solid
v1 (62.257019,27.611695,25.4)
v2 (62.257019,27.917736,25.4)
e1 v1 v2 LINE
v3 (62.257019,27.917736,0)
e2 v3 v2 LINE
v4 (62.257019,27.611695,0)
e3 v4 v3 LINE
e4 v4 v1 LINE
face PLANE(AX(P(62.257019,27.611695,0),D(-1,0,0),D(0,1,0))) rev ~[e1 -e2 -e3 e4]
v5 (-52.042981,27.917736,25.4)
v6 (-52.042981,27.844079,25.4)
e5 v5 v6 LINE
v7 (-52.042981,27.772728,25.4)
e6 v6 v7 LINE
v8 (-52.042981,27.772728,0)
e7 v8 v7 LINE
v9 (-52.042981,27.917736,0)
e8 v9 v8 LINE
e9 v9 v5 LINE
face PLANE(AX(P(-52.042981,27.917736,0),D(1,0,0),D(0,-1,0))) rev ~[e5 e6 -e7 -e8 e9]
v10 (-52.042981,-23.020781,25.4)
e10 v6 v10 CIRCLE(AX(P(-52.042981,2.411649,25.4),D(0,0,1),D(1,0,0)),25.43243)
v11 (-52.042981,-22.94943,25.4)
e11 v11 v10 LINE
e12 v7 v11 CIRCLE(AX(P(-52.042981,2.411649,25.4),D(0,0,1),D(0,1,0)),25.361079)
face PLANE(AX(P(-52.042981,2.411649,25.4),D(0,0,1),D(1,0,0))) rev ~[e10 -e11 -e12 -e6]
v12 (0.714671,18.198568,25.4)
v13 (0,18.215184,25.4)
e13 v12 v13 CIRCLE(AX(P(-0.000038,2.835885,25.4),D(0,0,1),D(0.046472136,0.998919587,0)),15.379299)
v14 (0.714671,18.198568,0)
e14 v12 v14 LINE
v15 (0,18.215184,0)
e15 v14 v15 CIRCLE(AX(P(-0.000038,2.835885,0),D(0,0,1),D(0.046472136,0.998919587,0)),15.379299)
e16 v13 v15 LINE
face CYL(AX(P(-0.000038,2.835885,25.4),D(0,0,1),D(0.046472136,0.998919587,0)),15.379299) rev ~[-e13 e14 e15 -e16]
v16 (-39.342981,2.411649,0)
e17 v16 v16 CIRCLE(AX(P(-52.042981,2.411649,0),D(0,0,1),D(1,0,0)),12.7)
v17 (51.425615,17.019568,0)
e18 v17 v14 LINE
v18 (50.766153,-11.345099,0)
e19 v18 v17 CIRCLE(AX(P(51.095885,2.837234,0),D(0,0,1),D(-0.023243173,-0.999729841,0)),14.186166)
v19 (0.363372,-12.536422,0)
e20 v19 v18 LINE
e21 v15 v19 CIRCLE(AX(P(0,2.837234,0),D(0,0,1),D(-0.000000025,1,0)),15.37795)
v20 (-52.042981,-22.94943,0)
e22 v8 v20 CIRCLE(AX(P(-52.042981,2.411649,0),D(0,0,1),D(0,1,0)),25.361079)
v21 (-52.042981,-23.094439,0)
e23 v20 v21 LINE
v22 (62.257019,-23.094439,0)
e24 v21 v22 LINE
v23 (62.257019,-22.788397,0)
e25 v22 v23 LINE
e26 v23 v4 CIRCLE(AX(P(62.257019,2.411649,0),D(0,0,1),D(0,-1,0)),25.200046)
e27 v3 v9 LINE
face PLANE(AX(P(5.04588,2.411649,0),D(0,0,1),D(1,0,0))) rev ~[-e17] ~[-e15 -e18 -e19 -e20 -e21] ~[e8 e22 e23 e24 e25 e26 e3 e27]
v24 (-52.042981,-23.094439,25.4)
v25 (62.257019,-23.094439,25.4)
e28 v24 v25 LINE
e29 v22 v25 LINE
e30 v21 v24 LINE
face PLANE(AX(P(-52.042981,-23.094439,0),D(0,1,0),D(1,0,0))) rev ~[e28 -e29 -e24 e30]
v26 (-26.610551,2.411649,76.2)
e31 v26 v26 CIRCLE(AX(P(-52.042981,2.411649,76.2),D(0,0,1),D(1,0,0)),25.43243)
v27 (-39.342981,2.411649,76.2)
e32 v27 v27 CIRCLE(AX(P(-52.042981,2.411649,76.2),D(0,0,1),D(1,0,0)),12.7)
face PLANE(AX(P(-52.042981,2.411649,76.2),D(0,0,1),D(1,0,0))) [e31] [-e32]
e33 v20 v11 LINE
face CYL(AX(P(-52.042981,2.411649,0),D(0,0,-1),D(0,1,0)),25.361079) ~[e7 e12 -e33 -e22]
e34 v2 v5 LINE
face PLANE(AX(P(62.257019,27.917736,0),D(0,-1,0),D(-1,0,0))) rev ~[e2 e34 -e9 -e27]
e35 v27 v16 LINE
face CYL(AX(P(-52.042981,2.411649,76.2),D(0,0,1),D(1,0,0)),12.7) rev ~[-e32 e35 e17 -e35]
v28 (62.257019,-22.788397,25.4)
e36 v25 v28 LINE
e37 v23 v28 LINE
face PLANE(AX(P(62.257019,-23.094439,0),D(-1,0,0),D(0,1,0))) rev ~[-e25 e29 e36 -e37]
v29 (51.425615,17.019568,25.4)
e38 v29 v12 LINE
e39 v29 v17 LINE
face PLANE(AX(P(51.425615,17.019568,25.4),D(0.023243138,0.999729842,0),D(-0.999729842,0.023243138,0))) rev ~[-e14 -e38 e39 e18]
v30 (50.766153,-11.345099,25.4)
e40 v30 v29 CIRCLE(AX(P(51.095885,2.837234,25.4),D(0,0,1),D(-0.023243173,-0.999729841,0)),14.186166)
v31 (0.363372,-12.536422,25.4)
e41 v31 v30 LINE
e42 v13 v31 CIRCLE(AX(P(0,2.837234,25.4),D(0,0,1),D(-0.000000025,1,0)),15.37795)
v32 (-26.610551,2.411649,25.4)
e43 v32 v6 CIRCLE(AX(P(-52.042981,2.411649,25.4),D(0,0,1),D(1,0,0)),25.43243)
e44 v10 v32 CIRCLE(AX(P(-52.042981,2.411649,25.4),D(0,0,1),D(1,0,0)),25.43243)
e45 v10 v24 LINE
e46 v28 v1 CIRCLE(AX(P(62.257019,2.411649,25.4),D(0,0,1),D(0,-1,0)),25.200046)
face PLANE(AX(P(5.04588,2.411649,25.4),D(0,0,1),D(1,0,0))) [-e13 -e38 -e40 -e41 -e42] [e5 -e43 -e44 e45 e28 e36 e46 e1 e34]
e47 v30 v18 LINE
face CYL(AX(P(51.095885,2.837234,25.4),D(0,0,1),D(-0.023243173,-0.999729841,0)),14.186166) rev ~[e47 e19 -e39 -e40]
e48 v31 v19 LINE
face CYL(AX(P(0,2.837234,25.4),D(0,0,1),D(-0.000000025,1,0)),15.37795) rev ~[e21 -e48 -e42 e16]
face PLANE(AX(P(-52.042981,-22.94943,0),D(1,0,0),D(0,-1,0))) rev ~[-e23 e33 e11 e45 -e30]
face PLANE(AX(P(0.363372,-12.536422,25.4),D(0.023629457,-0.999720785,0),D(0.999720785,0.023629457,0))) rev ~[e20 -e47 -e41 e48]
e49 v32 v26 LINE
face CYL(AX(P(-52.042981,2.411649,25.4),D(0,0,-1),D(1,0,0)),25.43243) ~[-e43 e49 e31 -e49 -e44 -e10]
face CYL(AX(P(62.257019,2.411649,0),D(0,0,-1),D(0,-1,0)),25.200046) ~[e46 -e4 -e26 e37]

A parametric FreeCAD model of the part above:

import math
import FreeCAD as App
import Part
import Sketcher
Q = App.Units.Quantity

doc = App.newDocument("Part")
body = doc.addObject("PartDesign::Body", "Body")

# Sketch on XY plane
sketch1 = body.newObject("Sketcher::SketchObject", "Sketch")
sketch1.AttachmentSupport = (doc.getObject("XY_Plane"), [""])
sketch1.MapMode = "FlatFace"
sketch1.addGeometry([
    Part.LineSegment(App.Vector(62.257019, 27.917736, 0), App.Vector(-52.042981, 27.917736, 0)),  # 0
    Part.LineSegment(App.Vector(-52.042981, 27.917736, 0), App.Vector(-52.042981, 27.772728, 0)),  # 1
    Part.ArcOfCircle(Part.Circle(App.Vector(-52.042981, 2.411649, 0), App.Vector(0, 0, 1), 25.361079), math.radians(90), math.radians(270)),  # 2
    Part.LineSegment(App.Vector(-52.042981, -22.94943, 0), App.Vector(-52.042981, -23.094439, 0)),  # 3
    Part.LineSegment(App.Vector(-52.042981, -23.094439, 0), App.Vector(62.257019, -23.094439, 0)),  # 4
    Part.LineSegment(App.Vector(62.257019, -23.094439, 0), App.Vector(62.257019, -22.788397, 0)),  # 5
    Part.ArcOfCircle(Part.Circle(App.Vector(62.257019, 2.411649, 0), App.Vector(0, 0, 1), 25.200046), math.radians(-90), math.radians(90)),  # 6
    Part.LineSegment(App.Vector(62.257019, 27.611695, 0), App.Vector(62.257019, 27.917736, 0)),  # 7
], False)
sketch1.addConstraint([
    Sketcher.Constraint("Coincident", 0, 2, 1, 1),
    Sketcher.Constraint("Coincident", 1, 2, 2, 1),
    Sketcher.Constraint("Coincident", 2, 2, 3, 1),
    Sketcher.Constraint("Coincident", 3, 2, 4, 1),
    Sketcher.Constraint("Coincident", 4, 2, 5, 1),
    Sketcher.Constraint("Coincident", 5, 2, 6, 1),
    Sketcher.Constraint("Coincident", 6, 2, 7, 1),
    Sketcher.Constraint("Coincident", 7, 2, 0, 1),
    Sketcher.Constraint("Horizontal", 0),
    Sketcher.Constraint("Vertical", 1),
    Sketcher.Constraint("Vertical", 3),
    Sketcher.Constraint("Horizontal", 4),
    Sketcher.Constraint("Vertical", 5),
    Sketcher.Constraint("Vertical", 7),
    Sketcher.Constraint("Horizontal", 2, 3, 6, 3),
    Sketcher.Constraint("Vertical", 2, 3, 0, 2),
    Sketcher.Constraint("Vertical", 1, 2, 2, 2),
    Sketcher.Constraint("Vertical", 6, 3, 4, 2),
    Sketcher.Constraint("Vertical", 5, 2, 6, 2),
    Sketcher.Constraint("Equal", 1, 3),
    Sketcher.Constraint("DistanceX", 0, 2, 0, 1, Q("4.5 in")),
    Sketcher.Constraint("Radius", 2, 25.361079),
    Sketcher.Constraint("Radius", 6, 25.200046),
    Sketcher.Constraint("DistanceY", 1, 2, 1, 1, 0.145008),
    Sketcher.Constraint("DistanceX", 2, 3, -1, 1, 52.042981),
    Sketcher.Constraint("DistanceY", -1, 1, 2, 3, 2.411649),
])
pad1 = body.newObject("PartDesign::Pad", "Pad")
pad1.Profile = sketch1
pad1.Length = Q("1 in")

# Sketch on XY plane
sketch2 = body.newObject("Sketcher::SketchObject", "Sketch001")
sketch2.AttachmentSupport = (doc.getObject("XY_Plane"), [""])
sketch2.MapMode = "FlatFace"
sketch2.AttachmentOffset = App.Placement(App.Vector(0, 0, 1 * 25.4), App.Rotation())
sketch2.addGeometry(Part.Circle(App.Vector(-52.042981, 2.411649, 0), App.Vector(0, 0, 1), 25.43243), False)
sketch2.addConstraint([
    Sketcher.Constraint("Diameter", 0, 50.86486),
    Sketcher.Constraint("DistanceX", 0, 3, -1, 1, 52.042981),
    Sketcher.Constraint("DistanceY", -1, 1, 0, 3, 2.411649),
])
pad2 = body.newObject("PartDesign::Pad", "Pad001")
pad2.Profile = sketch2
pad2.Length = Q("2 in")

# Sketch on XY plane
sketch3 = body.newObject("Sketcher::SketchObject", "Sketch002")
sketch3.AttachmentSupport = (doc.getObject("XY_Plane"), [""])
sketch3.MapMode = "FlatFace"
sketch3.AttachmentOffset = App.Placement(App.Vector(0, 0, 3 * 25.4), App.Rotation())
sketch3.addGeometry(Part.Circle(App.Vector(-52.042981, 2.411649, 0), App.Vector(0, 0, 1), 12.7), False)
sketch3.addConstraint([
    Sketcher.Constraint("Diameter", 0, Q("1 in")),
    Sketcher.Constraint("DistanceX", 0, 3, -1, 1, 52.042981),
    Sketcher.Constraint("DistanceY", -1, 1, 0, 3, 2.411649),
])
pocket1 = body.newObject("PartDesign::Pocket", "Pocket")
pocket1.Profile = sketch3
pocket1.Length = Q("7 in")

# Sketch on XY plane
sketch4 = body.newObject("Sketcher::SketchObject", "Sketch003")
sketch4.AttachmentSupport = (doc.getObject("XY_Plane"), [""])
sketch4.MapMode = "FlatFace"
sketch4.AttachmentOffset = App.Placement(App.Vector(0, 0, 1 * 25.4), App.Rotation())
sketch4.addGeometry([
    Part.ArcOfCircle(Part.Circle(App.Vector(-0.000038, 2.835885, 0), App.Vector(0, 0, 1), 15.379299), math.radians(87.336383), math.radians(89.999859)),  # 0
    Part.ArcOfCircle(Part.Circle(App.Vector(0, 2.837234, 0), App.Vector(0, 0, 1), 15.37795), math.radians(90.000001), math.radians(271.35399)),  # 1
    Part.LineSegment(App.Vector(0.363372, -12.536422, 0), App.Vector(50.766153, -11.345099, 0)),  # 2
    Part.ArcOfCircle(Part.Circle(App.Vector(51.095885, 2.837234, 0), App.Vector(0, 0, 1), 14.186166), math.radians(-91.331856), math.radians(88.668148)),  # 3
    Part.LineSegment(App.Vector(51.425615, 17.019568, 0), App.Vector(0.714671, 18.198568, 0)),  # 4
], False)
sketch4.addConstraint([
    Sketcher.Constraint("Coincident", 0, 2, 1, 1),
    Sketcher.Constraint("Tangent", 1, 2, 2, 1),
    Sketcher.Constraint("Coincident", 2, 2, 3, 1),
    Sketcher.Constraint("Tangent", 3, 2, 4, 1),
    Sketcher.Constraint("Coincident", 4, 2, 0, 1),
    Sketcher.Constraint("PointOnObject", 1, 3, -2),
    Sketcher.Constraint("PointOnObject", 0, 2, -2),
    Sketcher.Constraint("Horizontal", 1, 3, 3, 3),
    Sketcher.Constraint("Radius", 0, 15.379299),
    Sketcher.Constraint("Radius", 1, 15.37795),
    Sketcher.Constraint("Radius", 3, 14.186166),
    Sketcher.Constraint("DistanceY", 2, 2, -1, 1, 11.345099),
    Sketcher.Constraint("DistanceX", 1, 2, 4, 2, 0.351299),
    Sketcher.Constraint("DistanceY", 3, 2, 4, 2, 1.179),
    Sketcher.Constraint("Distance", 2, 50.416858),
    Sketcher.Constraint("DistanceY", 1, 2, -1, 1, 12.536422),
])
pocket2 = body.newObject("PartDesign::Pocket", "Pocket001")
pocket2.Profile = sketch4
pocket2.Length = Q("8 in")

doc.recompute()
